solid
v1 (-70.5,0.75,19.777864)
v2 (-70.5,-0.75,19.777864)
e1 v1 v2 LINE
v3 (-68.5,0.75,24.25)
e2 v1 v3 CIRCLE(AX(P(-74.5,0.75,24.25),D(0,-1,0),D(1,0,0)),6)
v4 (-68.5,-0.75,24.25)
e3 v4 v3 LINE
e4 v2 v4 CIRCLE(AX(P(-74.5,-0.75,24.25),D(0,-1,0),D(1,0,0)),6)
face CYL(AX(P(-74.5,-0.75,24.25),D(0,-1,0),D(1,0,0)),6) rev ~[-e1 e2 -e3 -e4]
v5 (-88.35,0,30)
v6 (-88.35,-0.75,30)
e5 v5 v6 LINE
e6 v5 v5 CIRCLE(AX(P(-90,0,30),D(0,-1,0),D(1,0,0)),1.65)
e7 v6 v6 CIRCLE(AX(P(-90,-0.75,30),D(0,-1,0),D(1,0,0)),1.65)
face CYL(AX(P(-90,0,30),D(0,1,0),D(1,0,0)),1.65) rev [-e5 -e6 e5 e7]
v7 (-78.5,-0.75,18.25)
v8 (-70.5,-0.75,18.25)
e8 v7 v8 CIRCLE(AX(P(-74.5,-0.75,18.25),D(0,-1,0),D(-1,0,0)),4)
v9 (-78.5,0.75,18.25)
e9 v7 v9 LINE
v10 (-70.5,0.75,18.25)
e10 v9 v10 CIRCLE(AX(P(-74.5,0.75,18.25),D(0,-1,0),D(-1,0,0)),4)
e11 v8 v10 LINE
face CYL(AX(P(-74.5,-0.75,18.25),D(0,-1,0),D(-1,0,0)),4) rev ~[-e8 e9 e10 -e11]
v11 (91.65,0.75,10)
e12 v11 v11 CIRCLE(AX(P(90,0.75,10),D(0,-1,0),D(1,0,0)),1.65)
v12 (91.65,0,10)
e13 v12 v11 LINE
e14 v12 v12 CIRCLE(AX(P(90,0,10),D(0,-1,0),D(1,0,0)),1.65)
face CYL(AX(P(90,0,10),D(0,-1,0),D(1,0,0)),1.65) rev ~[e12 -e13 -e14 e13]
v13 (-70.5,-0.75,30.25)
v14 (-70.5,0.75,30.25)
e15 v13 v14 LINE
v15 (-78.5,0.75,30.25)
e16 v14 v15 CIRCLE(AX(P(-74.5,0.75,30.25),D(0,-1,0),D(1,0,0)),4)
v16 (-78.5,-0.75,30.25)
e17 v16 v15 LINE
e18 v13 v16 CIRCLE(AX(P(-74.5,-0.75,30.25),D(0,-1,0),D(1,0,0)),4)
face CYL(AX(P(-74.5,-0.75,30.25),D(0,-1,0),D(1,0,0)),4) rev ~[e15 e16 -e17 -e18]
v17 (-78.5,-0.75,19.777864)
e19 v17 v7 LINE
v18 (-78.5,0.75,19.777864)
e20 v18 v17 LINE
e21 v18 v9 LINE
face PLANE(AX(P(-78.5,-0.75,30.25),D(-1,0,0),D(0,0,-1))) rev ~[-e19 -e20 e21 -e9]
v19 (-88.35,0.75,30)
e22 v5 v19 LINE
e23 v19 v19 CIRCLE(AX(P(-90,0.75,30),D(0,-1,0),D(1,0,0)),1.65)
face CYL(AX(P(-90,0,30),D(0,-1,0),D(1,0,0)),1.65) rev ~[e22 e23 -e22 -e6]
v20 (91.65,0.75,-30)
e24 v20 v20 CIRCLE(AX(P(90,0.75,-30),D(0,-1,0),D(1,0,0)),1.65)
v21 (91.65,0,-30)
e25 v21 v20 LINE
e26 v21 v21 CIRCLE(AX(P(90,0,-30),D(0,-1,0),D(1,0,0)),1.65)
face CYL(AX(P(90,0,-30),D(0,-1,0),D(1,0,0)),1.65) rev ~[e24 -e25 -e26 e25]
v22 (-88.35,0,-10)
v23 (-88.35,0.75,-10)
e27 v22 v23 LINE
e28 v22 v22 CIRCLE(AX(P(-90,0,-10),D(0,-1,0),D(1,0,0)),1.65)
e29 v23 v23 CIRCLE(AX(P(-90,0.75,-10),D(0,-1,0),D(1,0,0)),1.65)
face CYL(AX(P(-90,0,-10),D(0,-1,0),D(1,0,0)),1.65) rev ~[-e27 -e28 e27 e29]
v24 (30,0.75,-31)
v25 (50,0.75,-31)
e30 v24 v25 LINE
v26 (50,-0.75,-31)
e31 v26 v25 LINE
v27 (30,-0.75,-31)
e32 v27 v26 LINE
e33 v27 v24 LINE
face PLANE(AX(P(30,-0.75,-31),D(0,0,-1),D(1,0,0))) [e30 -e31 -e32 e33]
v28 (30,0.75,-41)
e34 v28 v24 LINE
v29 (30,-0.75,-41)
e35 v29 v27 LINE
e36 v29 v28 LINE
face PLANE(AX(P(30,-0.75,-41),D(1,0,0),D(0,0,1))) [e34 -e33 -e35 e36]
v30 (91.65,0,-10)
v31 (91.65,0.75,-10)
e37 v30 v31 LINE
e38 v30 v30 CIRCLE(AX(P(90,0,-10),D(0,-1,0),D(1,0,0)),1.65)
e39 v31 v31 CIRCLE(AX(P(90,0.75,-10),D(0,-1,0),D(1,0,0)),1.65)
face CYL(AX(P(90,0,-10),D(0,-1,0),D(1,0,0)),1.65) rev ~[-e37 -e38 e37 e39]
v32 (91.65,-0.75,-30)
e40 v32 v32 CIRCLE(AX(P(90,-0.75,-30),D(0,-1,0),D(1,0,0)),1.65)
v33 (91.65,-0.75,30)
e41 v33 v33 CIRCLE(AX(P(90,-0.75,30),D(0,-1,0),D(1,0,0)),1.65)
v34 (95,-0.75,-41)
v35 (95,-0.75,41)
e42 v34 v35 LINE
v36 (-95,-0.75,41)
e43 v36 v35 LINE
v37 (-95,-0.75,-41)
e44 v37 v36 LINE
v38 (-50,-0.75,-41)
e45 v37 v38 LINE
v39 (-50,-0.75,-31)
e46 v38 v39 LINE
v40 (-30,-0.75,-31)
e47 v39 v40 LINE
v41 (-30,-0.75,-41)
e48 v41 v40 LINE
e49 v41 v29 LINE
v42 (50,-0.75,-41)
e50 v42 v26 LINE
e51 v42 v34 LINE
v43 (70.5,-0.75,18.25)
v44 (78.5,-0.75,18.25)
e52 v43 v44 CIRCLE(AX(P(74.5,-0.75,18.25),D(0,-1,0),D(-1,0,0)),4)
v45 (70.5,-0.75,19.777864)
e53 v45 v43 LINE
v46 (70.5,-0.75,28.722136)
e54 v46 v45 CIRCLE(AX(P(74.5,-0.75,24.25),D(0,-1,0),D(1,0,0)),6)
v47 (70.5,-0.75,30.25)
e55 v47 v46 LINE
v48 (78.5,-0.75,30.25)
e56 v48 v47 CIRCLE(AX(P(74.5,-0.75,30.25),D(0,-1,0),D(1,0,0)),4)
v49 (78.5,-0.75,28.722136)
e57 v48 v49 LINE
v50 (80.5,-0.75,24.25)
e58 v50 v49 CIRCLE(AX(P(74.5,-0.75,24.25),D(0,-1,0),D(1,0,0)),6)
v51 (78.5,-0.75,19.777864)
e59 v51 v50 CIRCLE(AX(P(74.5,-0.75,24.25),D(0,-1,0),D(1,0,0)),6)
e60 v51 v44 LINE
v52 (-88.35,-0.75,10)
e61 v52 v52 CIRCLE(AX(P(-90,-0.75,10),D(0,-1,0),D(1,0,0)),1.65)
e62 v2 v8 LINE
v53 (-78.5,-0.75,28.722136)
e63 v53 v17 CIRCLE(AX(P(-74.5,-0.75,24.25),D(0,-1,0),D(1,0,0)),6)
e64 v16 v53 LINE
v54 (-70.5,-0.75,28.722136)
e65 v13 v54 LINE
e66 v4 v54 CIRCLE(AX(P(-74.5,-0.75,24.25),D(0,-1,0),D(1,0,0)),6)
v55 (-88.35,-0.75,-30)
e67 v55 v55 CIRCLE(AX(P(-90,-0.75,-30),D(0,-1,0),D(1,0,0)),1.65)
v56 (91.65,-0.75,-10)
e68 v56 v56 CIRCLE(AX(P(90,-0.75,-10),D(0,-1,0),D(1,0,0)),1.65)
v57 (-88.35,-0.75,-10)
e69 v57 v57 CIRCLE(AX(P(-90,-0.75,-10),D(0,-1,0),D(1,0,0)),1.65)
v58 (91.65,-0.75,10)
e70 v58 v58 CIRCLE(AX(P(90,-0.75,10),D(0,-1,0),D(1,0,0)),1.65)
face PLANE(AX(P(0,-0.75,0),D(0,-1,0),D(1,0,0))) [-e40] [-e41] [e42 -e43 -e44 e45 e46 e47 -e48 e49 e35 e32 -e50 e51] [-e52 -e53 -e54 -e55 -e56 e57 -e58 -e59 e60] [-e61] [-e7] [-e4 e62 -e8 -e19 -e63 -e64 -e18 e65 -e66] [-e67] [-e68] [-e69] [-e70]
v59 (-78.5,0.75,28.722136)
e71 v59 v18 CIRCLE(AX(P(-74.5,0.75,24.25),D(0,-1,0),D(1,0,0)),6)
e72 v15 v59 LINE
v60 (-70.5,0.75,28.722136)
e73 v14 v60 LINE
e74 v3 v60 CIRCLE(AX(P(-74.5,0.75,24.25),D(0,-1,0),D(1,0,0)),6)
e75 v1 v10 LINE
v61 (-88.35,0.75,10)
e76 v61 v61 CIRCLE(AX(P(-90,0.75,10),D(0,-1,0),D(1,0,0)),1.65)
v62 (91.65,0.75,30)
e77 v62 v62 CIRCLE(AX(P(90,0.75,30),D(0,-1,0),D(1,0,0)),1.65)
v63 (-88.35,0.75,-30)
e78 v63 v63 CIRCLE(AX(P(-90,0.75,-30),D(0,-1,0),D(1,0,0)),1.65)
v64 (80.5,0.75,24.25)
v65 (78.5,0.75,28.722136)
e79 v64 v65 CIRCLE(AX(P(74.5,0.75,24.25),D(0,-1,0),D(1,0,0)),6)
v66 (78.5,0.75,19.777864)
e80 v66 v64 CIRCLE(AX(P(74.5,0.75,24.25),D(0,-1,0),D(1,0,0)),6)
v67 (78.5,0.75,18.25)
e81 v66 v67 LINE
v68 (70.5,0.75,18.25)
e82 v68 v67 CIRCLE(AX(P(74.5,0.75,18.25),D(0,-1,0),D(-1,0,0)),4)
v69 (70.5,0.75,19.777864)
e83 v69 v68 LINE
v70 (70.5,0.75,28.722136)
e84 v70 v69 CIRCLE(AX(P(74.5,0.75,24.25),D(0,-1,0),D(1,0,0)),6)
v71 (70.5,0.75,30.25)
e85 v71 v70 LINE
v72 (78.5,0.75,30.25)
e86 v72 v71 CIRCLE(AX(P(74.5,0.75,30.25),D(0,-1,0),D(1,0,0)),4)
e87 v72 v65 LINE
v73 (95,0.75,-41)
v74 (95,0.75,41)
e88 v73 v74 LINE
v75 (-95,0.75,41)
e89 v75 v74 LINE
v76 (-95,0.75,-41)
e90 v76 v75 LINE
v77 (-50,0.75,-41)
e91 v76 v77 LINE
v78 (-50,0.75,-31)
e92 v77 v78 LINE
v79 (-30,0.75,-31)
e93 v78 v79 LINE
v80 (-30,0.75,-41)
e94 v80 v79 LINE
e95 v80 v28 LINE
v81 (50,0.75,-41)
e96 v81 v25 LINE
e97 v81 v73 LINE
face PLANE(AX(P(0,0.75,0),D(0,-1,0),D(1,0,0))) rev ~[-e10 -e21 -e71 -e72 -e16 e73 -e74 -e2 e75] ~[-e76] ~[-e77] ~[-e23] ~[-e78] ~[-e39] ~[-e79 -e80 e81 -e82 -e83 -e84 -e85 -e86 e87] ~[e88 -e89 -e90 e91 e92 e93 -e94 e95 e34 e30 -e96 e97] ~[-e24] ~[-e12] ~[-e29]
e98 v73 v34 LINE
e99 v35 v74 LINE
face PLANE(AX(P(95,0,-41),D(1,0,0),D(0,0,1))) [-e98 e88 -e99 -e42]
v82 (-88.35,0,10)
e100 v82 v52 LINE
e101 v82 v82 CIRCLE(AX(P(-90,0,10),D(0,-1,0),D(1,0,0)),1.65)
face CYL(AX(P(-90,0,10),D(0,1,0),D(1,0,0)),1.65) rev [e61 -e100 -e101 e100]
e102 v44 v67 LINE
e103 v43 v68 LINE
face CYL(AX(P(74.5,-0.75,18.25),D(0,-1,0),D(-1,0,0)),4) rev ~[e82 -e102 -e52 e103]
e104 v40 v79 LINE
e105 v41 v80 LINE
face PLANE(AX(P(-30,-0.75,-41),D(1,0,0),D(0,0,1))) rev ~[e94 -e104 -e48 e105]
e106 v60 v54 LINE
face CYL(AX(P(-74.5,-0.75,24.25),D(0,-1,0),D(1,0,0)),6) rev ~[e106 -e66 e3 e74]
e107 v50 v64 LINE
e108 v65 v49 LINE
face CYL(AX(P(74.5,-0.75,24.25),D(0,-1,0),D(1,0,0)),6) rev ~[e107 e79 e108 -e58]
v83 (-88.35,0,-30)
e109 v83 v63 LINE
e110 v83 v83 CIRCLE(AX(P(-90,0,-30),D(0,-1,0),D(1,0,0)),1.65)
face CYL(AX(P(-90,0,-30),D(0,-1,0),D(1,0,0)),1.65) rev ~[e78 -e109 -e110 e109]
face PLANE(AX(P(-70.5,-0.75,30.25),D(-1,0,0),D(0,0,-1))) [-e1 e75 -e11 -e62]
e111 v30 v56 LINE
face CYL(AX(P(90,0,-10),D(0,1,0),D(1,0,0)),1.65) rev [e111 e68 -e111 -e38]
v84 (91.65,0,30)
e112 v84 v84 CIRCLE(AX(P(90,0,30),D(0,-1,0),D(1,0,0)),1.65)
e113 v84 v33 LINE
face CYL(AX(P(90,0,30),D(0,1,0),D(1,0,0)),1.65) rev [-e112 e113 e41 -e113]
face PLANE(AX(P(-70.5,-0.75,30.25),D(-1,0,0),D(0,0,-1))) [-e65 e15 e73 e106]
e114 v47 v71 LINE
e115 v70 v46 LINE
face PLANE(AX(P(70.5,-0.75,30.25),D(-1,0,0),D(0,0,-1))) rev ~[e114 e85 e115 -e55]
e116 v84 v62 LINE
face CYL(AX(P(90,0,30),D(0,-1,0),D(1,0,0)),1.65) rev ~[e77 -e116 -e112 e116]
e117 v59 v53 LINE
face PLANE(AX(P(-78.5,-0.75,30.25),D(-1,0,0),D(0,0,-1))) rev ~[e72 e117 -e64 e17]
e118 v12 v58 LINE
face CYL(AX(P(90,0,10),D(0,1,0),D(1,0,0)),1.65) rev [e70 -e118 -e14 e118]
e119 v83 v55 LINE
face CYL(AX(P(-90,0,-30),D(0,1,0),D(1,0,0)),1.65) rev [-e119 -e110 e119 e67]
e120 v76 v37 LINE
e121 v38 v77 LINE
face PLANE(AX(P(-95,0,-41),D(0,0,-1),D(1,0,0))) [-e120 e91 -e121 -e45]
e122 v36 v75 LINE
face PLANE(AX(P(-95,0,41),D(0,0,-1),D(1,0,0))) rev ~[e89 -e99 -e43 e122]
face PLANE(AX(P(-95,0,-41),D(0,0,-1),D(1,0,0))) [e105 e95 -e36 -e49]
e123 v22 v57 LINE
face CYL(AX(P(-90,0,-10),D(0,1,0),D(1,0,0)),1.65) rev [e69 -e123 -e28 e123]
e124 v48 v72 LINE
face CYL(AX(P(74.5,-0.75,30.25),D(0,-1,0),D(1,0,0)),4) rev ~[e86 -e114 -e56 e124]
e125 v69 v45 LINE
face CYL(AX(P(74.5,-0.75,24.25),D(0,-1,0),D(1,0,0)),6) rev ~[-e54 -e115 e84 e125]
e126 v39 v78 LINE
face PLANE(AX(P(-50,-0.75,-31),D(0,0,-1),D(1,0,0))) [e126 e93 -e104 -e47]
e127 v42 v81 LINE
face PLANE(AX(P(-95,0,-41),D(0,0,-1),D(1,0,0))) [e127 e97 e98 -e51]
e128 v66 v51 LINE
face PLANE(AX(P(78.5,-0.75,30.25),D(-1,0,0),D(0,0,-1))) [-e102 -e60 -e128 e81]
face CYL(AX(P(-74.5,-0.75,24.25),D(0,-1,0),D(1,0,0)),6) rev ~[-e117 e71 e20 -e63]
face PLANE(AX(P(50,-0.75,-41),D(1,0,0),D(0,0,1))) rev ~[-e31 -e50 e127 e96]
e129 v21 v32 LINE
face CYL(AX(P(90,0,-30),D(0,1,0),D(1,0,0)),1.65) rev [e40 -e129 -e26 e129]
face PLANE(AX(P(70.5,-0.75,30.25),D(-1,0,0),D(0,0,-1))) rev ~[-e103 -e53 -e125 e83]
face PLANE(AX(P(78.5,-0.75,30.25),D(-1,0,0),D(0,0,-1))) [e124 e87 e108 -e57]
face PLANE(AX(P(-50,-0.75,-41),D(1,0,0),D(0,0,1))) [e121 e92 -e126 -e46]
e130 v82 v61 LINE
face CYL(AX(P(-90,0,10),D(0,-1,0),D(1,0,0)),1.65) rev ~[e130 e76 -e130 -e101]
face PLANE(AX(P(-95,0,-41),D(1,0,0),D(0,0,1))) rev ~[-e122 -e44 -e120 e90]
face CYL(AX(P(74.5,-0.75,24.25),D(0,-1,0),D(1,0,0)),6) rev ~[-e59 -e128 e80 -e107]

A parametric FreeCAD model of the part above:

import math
import FreeCAD as App
import Part
import Sketcher
from FreeCAD import Vector

doc = App.newDocument("Part")
params = doc.addObject("Spreadsheet::Sheet", "Params")
for row, (alias, value) in enumerate([
    ("sketch1_diameter", "3.3 mm"),
    ("sketch1_width", "190 mm"),
    ("sketch1_height", "82 mm"),
    ("pad1_length", "0.75 mm"),
    ("pad1_length2", "0.75 mm"),
    ("sketch2_width", "20 mm"),
    ("sketch2_height", "10 mm"),
    ("sketch3_radius", "4 mm"),
    ("sketch3_height", "12 mm"),
    ("sketch4_diameter", "12 mm"),
], start=1):
    params.set(f"A{row}", alias)
    params.set(f"B{row}", "=" + value)
    params.setAlias(f"B{row}", alias)

body = doc.addObject("PartDesign::Body", "Body")

# Sketch on XZ plane
sketch1 = body.newObject("Sketcher::SketchObject", "Sketch")
sketch1.AttachmentSupport = (doc.getObject("XZ_Plane"), [""])
sketch1.MapMode = "FlatFace"
sketch1.addGeometry([
    Part.LineSegment(Vector(-95, 41, 0), Vector(-95, -41, 0)),  # 0
    Part.LineSegment(Vector(-95, -41, 0), Vector(95, -41, 0)),  # 1
    Part.LineSegment(Vector(95, -41, 0), Vector(95, 41, 0)),  # 2
    Part.LineSegment(Vector(95, 41, 0), Vector(-95, 41, 0)),  # 3
    Part.Circle(Vector(-90, -30, 0), Vector(0, 0, 1), 1.65),  # 4
    Part.Circle(Vector(-90, -10, 0), Vector(0, 0, 1), 1.65),  # 5
    Part.Circle(Vector(90, -30, 0), Vector(0, 0, 1), 1.65),  # 6
    Part.Circle(Vector(90, -10, 0), Vector(0, 0, 1), 1.65),  # 7
    Part.Circle(Vector(-90, 10, 0), Vector(0, 0, 1), 1.65),  # 8
    Part.Circle(Vector(-90, 30, 0), Vector(0, 0, 1), 1.65),  # 9
    Part.Circle(Vector(90, 10, 0), Vector(0, 0, 1), 1.65),  # 10
    Part.Circle(Vector(90, 30, 0), Vector(0, 0, 1), 1.65),  # 11
], False)
sketch1.addConstraint([
    Sketcher.Constraint("Coincident", 0, 2, 1, 1),
    Sketcher.Constraint("Coincident", 1, 2, 2, 1),
    Sketcher.Constraint("Coincident", 2, 2, 3, 1),
    Sketcher.Constraint("Coincident", 3, 2, 0, 1),
    Sketcher.Constraint("Vertical", 0),
    Sketcher.Constraint("Horizontal", 1),
    Sketcher.Constraint("Vertical", 2),
    Sketcher.Constraint("Horizontal", 3),
    Sketcher.Constraint("Equal", 4, 5),
    Sketcher.Constraint("Equal", 5, 6),
    Sketcher.Constraint("Equal", 6, 7),
    Sketcher.Constraint("Equal", 7, 8),
    Sketcher.Constraint("Equal", 8, 9),
    Sketcher.Constraint("Equal", 9, 10),
    Sketcher.Constraint("Equal", 10, 11),
    Sketcher.Constraint("Symmetric", 7, 3, 8, 3, -1, 1),
    Sketcher.Constraint("Symmetric", 6, 3, 9, 3, -1, 1),
    Sketcher.Constraint("Symmetric", 5, 3, 10, 3, -1, 1),
    Sketcher.Constraint("Symmetric", 4, 3, 11, 3, -1, 1),
    Sketcher.Constraint("Symmetric", 0, 2, 2, 2, -1, 1),
    Sketcher.Constraint("Symmetric", 4, 3, 6, 3, -2),
    Sketcher.Constraint("Symmetric", 5, 3, 7, 3, -2),
    Sketcher.Constraint("Vertical", 4, 3, 5, 3),
    Sketcher.Constraint("Diameter", 4, 3.3),
    Sketcher.Constraint("DistanceX", 1, 1, 1, 2, 190.0),
    Sketcher.Constraint("DistanceY", 0, 2, 0, 1, 82.0),
    Sketcher.Constraint("DistanceX", 4, 3, -1, 1, 90.0),
    Sketcher.Constraint("DistanceY", 4, 3, -1, 1, 30.0),
    Sketcher.Constraint("DistanceY", 5, 3, -1, 1, 10.0),
])
sketch1.setExpression("Constraints[23]", "Params.sketch1_diameter")
sketch1.setExpression("Constraints[24]", "Params.sketch1_width")
sketch1.setExpression("Constraints[25]", "Params.sketch1_height")
pad1 = body.newObject("PartDesign::Pad", "Pad")
pad1.Profile = sketch1
pad1.Type = "TwoLengths"
pad1.setExpression("Length", "Params.pad1_length")
pad1.setExpression("Length2", "Params.pad1_length2")

# Sketch on XZ plane
sketch2 = body.newObject("Sketcher::SketchObject", "Sketch001")
sketch2.AttachmentSupport = (doc.getObject("XZ_Plane"), [""])
sketch2.MapMode = "FlatFace"
sketch2.AttachmentOffset = App.Placement(Vector(0, 0, 0.75), App.Rotation())
sketch2.addGeometry([
    Part.LineSegment(Vector(-50, -31, 0), Vector(-50, -41, 0)),  # 0
    Part.LineSegment(Vector(-50, -41, 0), Vector(-30, -41, 0)),  # 1
    Part.LineSegment(Vector(-30, -41, 0), Vector(-30, -31, 0)),  # 2
    Part.LineSegment(Vector(-30, -31, 0), Vector(-50, -31, 0)),  # 3
    Part.LineSegment(Vector(30, -31, 0), Vector(30, -41, 0)),  # 4
    Part.LineSegment(Vector(30, -41, 0), Vector(50, -41, 0)),  # 5
    Part.LineSegment(Vector(50, -41, 0), Vector(50, -31, 0)),  # 6
    Part.LineSegment(Vector(50, -31, 0), Vector(30, -31, 0)),  # 7
], False)
sketch2.addConstraint([
    Sketcher.Constraint("Coincident", 0, 2, 1, 1),
    Sketcher.Constraint("Coincident", 1, 2, 2, 1),
    Sketcher.Constraint("Coincident", 2, 2, 3, 1),
    Sketcher.Constraint("Coincident", 3, 2, 0, 1),
    Sketcher.Constraint("Coincident", 4, 2, 5, 1),
    Sketcher.Constraint("Coincident", 5, 2, 6, 1),
    Sketcher.Constraint("Coincident", 6, 2, 7, 1),
    Sketcher.Constraint("Coincident", 7, 2, 4, 1),
    Sketcher.Constraint("Vertical", 0),
    Sketcher.Constraint("Horizontal", 1),
    Sketcher.Constraint("Vertical", 2),
    Sketcher.Constraint("Horizontal", 3),
    Sketcher.Constraint("Vertical", 4),
    Sketcher.Constraint("Horizontal", 5),
    Sketcher.Constraint("Vertical", 6),
    Sketcher.Constraint("Horizontal", 7),
    Sketcher.Constraint("Symmetric", 1, 2, 4, 2, -2),
    Sketcher.Constraint("Symmetric", 3, 2, 6, 2, -2),
    Sketcher.Constraint("DistanceX", 1, 1, 1, 2, 20.0),
    Sketcher.Constraint("DistanceY", 0, 2, 0, 1, 10.0),
    Sketcher.Constraint("DistanceX", 0, 2, -1, 1, 50.0),
    Sketcher.Constraint("DistanceY", 0, 2, -1, 1, 41.0),
])
sketch2.setExpression("Constraints[18]", "Params.sketch2_width")
sketch2.setExpression("Constraints[19]", "Params.sketch2_height")
pocket1 = body.newObject("PartDesign::Pocket", "Pocket")
pocket1.Profile = sketch2
pocket1.Type = "ThroughAll"

# Sketch on XZ plane
sketch3 = body.newObject("Sketcher::SketchObject", "Sketch002")
sketch3.AttachmentSupport = (doc.getObject("XZ_Plane"), [""])
sketch3.MapMode = "FlatFace"
sketch3.AttachmentOffset = App.Placement(Vector(0, 0, 0.75), App.Rotation())
sketch3.addGeometry([
    Part.ArcOfCircle(Part.Circle(Vector(74.5, 30.25, 0), Vector(0, 0, 1), 4), math.radians(0), math.radians(180)),  # 0
    Part.LineSegment(Vector(70.5, 30.25, 0), Vector(70.5, 18.25, 0)),  # 1
    Part.ArcOfCircle(Part.Circle(Vector(74.5, 18.25, 0), Vector(0, 0, 1), 4), math.radians(180), math.radians(360)),  # 2
    Part.LineSegment(Vector(78.5, 18.25, 0), Vector(78.5, 30.25, 0)),  # 3
    Part.ArcOfCircle(Part.Circle(Vector(-74.5, 30.25, 0), Vector(0, 0, 1), 4), math.radians(0), math.radians(180)),  # 4
    Part.LineSegment(Vector(-78.5, 30.25, 0), Vector(-78.5, 18.25, 0)),  # 5
    Part.ArcOfCircle(Part.Circle(Vector(-74.5, 18.25, 0), Vector(0, 0, 1), 4), math.radians(180), math.radians(360)),  # 6
    Part.LineSegment(Vector(-70.5, 18.25, 0), Vector(-70.5, 30.25, 0)),  # 7
], False)
sketch3.addConstraint([
    Sketcher.Constraint("Tangent", 0, 2, 1, 1),
    Sketcher.Constraint("Tangent", 1, 2, 2, 1),
    Sketcher.Constraint("Tangent", 2, 2, 3, 1),
    Sketcher.Constraint("Tangent", 3, 2, 0, 1),
    Sketcher.Constraint("Tangent", 4, 2, 5, 1),
    Sketcher.Constraint("Tangent", 5, 2, 6, 1),
    Sketcher.Constraint("Tangent", 6, 2, 7, 1),
    Sketcher.Constraint("Tangent", 7, 2, 4, 1),
    Sketcher.Constraint("Vertical", 1),
    Sketcher.Constraint("Vertical", 3),
    Sketcher.Constraint("Vertical", 5),
    Sketcher.Constraint("Vertical", 7),
    Sketcher.Constraint("Equal", 2, 4),
    Sketcher.Constraint("Symmetric", 0, 3, 4, 3, -2),
    Sketcher.Constraint("Horizontal", 2, 3, 6, 3),
    Sketcher.Constraint("Radius", 0, 4.0),
    Sketcher.Constraint("DistanceY", 1, 2, 1, 1, 12.0),
    Sketcher.Constraint("DistanceX", 4, 3, 0, 3, 149.0),
    Sketcher.Constraint("DistanceY", -1, 1, 0, 3, 30.25),
])
sketch3.setExpression("Constraints[15]", "Params.sketch3_radius")
sketch3.setExpression("Constraints[16]", "Params.sketch3_height")
pocket2 = body.newObject("PartDesign::Pocket", "Pocket001")
pocket2.Profile = sketch3
pocket2.Type = "ThroughAll"

# Sketch on XZ plane
sketch4 = body.newObject("Sketcher::SketchObject", "Sketch003")
sketch4.AttachmentSupport = (doc.getObject("XZ_Plane"), [""])
sketch4.MapMode = "FlatFace"
sketch4.AttachmentOffset = App.Placement(Vector(0, 0, 0.75), App.Rotation())
sketch4.addGeometry([
    Part.Circle(Vector(-74.5, 24.25, 0), Vector(0, 0, 1), 6),
    Part.Circle(Vector(74.5, 24.25, 0), Vector(0, 0, 1), 6),
], False)
sketch4.addConstraint([
    Sketcher.Constraint("Equal", 0, 1),
    Sketcher.Constraint("Symmetric", 0, 3, 1, 3, -2),
    Sketcher.Constraint("Diameter", 0, 12.0),
    Sketcher.Constraint("DistanceX", 0, 3, 1, 3, 149.0),
    Sketcher.Constraint("DistanceY", -1, 1, 0, 3, 24.25),
])
sketch4.setExpression("Constraints[2]", "Params.sketch4_diameter")
pocket3 = body.newObject("PartDesign::Pocket", "Pocket002")
pocket3.Profile = sketch4
pocket3.Type = "ThroughAll"

doc.recompute()
